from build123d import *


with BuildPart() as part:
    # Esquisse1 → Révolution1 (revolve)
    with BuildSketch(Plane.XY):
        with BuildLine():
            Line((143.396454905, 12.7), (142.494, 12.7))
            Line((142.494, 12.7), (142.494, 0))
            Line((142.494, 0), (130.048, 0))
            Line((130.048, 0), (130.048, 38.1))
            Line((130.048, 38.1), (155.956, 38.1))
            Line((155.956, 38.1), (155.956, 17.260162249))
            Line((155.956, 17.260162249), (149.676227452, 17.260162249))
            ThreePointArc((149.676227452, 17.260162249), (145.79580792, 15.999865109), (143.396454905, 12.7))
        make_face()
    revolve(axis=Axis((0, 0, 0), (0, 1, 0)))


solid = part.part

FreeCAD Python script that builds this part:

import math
import FreeCAD as App
import Part
import Sketcher

V = App.Vector
Q = App.Units.Quantity

doc = App.newDocument("Part")
body = doc.addObject("PartDesign::Body", "Body")

sketch1 = body.newObject("Sketcher::SketchObject", "Sketch")
sketch1.AttachmentSupport = (doc.getObject("XY_Plane"), [""])
sketch1.MapMode = "FlatFace"
sketch1.addGeometry(Part.LineSegment(V(142.5, 12.7, 0), V(143.4, 12.7, 0)), False)
sketch1.addGeometry(Part.ArcOfCircle(Part.Circle(V(149.7, 10.7, 0), V(0, 0, 1), 6.6), math.radians(90), math.radians(162)), False)
sketch1.addGeometry(Part.LineSegment(V(149.7, 17.3, 0), V(156, 17.3, 0)), False)
sketch1.addGeometry(Part.LineSegment(V(156, 17.3, 0), V(156, 38.1, 0)), False)
sketch1.addGeometry(Part.LineSegment(V(156, 38.1, 0), V(130, 38.1, 0)), False)
sketch1.addGeometry(Part.LineSegment(V(130, 38.1, 0), V(130, 0, 0)), False)
sketch1.addGeometry(Part.LineSegment(V(130, 0, 0), V(142.5, 0, 0)), False)
sketch1.addGeometry(Part.LineSegment(V(142.5, 0, 0), V(142.5, 12.7, 0)), False)
sketch1.addConstraint(Sketcher.Constraint("Coincident", 0, 2, 1, 2))
sketch1.addConstraint(Sketcher.Constraint("Tangent", 1, 1, 2, 1))
sketch1.addConstraint(Sketcher.Constraint("Coincident", 2, 2, 3, 1))
sketch1.addConstraint(Sketcher.Constraint("Coincident", 3, 2, 4, 1))
sketch1.addConstraint(Sketcher.Constraint("Coincident", 4, 2, 5, 1))
sketch1.addConstraint(Sketcher.Constraint("Coincident", 5, 2, 6, 1))
sketch1.addConstraint(Sketcher.Constraint("Coincident", 6, 2, 7, 1))
sketch1.addConstraint(Sketcher.Constraint("Coincident", 7, 2, 0, 1))
sketch1.addConstraint(Sketcher.Constraint("Horizontal", 0))
sketch1.addConstraint(Sketcher.Constraint("Horizontal", 2))
sketch1.addConstraint(Sketcher.Constraint("Vertical", 3))
sketch1.addConstraint(Sketcher.Constraint("Horizontal", 4))
sketch1.addConstraint(Sketcher.Constraint("Vertical", 5))
sketch1.addConstraint(Sketcher.Constraint("Horizontal", 6))
sketch1.addConstraint(Sketcher.Constraint("Vertical", 7))
sketch1.addConstraint(Sketcher.Constraint("PointOnObject", 5, 2, -1))
sketch1.addConstraint(Sketcher.Constraint("Radius", 1, Q("0.26 in")))
sketch1.addConstraint(Sketcher.Constraint("DistanceY", 5, 2, 5, 1, Q("1.5 in")))
sketch1.addConstraint(Sketcher.Constraint("DistanceY", 7, 1, 7, 2, Q("0.5 in")))
sketch1.addConstraint(Sketcher.Constraint("DistanceX", 4, 2, 4, 1, Q("1.02 in")))
sketch1.addConstraint(Sketcher.Constraint("DistanceX", 6, 1, 6, 2, Q("0.49 in")))
sketch1.addConstraint(Sketcher.Constraint("DistanceX", -1, 1, 2, 2, Q("6.14 in")))
sketch1.addConstraint(Sketcher.Constraint("DistanceX", 0, 1, 0, 2, Q("0.902455 mm")))
sketch1.addConstraint(Sketcher.Constraint("DistanceX", 2, 1, 2, 2, Q("6.279773 mm")))
revolution = body.newObject("PartDesign::Revolution", "Revolution")
revolution.Profile = sketch1
revolution.ReferenceAxis = (sketch1, ["V_Axis"])
revolution.Angle = 360

doc.recompute()
